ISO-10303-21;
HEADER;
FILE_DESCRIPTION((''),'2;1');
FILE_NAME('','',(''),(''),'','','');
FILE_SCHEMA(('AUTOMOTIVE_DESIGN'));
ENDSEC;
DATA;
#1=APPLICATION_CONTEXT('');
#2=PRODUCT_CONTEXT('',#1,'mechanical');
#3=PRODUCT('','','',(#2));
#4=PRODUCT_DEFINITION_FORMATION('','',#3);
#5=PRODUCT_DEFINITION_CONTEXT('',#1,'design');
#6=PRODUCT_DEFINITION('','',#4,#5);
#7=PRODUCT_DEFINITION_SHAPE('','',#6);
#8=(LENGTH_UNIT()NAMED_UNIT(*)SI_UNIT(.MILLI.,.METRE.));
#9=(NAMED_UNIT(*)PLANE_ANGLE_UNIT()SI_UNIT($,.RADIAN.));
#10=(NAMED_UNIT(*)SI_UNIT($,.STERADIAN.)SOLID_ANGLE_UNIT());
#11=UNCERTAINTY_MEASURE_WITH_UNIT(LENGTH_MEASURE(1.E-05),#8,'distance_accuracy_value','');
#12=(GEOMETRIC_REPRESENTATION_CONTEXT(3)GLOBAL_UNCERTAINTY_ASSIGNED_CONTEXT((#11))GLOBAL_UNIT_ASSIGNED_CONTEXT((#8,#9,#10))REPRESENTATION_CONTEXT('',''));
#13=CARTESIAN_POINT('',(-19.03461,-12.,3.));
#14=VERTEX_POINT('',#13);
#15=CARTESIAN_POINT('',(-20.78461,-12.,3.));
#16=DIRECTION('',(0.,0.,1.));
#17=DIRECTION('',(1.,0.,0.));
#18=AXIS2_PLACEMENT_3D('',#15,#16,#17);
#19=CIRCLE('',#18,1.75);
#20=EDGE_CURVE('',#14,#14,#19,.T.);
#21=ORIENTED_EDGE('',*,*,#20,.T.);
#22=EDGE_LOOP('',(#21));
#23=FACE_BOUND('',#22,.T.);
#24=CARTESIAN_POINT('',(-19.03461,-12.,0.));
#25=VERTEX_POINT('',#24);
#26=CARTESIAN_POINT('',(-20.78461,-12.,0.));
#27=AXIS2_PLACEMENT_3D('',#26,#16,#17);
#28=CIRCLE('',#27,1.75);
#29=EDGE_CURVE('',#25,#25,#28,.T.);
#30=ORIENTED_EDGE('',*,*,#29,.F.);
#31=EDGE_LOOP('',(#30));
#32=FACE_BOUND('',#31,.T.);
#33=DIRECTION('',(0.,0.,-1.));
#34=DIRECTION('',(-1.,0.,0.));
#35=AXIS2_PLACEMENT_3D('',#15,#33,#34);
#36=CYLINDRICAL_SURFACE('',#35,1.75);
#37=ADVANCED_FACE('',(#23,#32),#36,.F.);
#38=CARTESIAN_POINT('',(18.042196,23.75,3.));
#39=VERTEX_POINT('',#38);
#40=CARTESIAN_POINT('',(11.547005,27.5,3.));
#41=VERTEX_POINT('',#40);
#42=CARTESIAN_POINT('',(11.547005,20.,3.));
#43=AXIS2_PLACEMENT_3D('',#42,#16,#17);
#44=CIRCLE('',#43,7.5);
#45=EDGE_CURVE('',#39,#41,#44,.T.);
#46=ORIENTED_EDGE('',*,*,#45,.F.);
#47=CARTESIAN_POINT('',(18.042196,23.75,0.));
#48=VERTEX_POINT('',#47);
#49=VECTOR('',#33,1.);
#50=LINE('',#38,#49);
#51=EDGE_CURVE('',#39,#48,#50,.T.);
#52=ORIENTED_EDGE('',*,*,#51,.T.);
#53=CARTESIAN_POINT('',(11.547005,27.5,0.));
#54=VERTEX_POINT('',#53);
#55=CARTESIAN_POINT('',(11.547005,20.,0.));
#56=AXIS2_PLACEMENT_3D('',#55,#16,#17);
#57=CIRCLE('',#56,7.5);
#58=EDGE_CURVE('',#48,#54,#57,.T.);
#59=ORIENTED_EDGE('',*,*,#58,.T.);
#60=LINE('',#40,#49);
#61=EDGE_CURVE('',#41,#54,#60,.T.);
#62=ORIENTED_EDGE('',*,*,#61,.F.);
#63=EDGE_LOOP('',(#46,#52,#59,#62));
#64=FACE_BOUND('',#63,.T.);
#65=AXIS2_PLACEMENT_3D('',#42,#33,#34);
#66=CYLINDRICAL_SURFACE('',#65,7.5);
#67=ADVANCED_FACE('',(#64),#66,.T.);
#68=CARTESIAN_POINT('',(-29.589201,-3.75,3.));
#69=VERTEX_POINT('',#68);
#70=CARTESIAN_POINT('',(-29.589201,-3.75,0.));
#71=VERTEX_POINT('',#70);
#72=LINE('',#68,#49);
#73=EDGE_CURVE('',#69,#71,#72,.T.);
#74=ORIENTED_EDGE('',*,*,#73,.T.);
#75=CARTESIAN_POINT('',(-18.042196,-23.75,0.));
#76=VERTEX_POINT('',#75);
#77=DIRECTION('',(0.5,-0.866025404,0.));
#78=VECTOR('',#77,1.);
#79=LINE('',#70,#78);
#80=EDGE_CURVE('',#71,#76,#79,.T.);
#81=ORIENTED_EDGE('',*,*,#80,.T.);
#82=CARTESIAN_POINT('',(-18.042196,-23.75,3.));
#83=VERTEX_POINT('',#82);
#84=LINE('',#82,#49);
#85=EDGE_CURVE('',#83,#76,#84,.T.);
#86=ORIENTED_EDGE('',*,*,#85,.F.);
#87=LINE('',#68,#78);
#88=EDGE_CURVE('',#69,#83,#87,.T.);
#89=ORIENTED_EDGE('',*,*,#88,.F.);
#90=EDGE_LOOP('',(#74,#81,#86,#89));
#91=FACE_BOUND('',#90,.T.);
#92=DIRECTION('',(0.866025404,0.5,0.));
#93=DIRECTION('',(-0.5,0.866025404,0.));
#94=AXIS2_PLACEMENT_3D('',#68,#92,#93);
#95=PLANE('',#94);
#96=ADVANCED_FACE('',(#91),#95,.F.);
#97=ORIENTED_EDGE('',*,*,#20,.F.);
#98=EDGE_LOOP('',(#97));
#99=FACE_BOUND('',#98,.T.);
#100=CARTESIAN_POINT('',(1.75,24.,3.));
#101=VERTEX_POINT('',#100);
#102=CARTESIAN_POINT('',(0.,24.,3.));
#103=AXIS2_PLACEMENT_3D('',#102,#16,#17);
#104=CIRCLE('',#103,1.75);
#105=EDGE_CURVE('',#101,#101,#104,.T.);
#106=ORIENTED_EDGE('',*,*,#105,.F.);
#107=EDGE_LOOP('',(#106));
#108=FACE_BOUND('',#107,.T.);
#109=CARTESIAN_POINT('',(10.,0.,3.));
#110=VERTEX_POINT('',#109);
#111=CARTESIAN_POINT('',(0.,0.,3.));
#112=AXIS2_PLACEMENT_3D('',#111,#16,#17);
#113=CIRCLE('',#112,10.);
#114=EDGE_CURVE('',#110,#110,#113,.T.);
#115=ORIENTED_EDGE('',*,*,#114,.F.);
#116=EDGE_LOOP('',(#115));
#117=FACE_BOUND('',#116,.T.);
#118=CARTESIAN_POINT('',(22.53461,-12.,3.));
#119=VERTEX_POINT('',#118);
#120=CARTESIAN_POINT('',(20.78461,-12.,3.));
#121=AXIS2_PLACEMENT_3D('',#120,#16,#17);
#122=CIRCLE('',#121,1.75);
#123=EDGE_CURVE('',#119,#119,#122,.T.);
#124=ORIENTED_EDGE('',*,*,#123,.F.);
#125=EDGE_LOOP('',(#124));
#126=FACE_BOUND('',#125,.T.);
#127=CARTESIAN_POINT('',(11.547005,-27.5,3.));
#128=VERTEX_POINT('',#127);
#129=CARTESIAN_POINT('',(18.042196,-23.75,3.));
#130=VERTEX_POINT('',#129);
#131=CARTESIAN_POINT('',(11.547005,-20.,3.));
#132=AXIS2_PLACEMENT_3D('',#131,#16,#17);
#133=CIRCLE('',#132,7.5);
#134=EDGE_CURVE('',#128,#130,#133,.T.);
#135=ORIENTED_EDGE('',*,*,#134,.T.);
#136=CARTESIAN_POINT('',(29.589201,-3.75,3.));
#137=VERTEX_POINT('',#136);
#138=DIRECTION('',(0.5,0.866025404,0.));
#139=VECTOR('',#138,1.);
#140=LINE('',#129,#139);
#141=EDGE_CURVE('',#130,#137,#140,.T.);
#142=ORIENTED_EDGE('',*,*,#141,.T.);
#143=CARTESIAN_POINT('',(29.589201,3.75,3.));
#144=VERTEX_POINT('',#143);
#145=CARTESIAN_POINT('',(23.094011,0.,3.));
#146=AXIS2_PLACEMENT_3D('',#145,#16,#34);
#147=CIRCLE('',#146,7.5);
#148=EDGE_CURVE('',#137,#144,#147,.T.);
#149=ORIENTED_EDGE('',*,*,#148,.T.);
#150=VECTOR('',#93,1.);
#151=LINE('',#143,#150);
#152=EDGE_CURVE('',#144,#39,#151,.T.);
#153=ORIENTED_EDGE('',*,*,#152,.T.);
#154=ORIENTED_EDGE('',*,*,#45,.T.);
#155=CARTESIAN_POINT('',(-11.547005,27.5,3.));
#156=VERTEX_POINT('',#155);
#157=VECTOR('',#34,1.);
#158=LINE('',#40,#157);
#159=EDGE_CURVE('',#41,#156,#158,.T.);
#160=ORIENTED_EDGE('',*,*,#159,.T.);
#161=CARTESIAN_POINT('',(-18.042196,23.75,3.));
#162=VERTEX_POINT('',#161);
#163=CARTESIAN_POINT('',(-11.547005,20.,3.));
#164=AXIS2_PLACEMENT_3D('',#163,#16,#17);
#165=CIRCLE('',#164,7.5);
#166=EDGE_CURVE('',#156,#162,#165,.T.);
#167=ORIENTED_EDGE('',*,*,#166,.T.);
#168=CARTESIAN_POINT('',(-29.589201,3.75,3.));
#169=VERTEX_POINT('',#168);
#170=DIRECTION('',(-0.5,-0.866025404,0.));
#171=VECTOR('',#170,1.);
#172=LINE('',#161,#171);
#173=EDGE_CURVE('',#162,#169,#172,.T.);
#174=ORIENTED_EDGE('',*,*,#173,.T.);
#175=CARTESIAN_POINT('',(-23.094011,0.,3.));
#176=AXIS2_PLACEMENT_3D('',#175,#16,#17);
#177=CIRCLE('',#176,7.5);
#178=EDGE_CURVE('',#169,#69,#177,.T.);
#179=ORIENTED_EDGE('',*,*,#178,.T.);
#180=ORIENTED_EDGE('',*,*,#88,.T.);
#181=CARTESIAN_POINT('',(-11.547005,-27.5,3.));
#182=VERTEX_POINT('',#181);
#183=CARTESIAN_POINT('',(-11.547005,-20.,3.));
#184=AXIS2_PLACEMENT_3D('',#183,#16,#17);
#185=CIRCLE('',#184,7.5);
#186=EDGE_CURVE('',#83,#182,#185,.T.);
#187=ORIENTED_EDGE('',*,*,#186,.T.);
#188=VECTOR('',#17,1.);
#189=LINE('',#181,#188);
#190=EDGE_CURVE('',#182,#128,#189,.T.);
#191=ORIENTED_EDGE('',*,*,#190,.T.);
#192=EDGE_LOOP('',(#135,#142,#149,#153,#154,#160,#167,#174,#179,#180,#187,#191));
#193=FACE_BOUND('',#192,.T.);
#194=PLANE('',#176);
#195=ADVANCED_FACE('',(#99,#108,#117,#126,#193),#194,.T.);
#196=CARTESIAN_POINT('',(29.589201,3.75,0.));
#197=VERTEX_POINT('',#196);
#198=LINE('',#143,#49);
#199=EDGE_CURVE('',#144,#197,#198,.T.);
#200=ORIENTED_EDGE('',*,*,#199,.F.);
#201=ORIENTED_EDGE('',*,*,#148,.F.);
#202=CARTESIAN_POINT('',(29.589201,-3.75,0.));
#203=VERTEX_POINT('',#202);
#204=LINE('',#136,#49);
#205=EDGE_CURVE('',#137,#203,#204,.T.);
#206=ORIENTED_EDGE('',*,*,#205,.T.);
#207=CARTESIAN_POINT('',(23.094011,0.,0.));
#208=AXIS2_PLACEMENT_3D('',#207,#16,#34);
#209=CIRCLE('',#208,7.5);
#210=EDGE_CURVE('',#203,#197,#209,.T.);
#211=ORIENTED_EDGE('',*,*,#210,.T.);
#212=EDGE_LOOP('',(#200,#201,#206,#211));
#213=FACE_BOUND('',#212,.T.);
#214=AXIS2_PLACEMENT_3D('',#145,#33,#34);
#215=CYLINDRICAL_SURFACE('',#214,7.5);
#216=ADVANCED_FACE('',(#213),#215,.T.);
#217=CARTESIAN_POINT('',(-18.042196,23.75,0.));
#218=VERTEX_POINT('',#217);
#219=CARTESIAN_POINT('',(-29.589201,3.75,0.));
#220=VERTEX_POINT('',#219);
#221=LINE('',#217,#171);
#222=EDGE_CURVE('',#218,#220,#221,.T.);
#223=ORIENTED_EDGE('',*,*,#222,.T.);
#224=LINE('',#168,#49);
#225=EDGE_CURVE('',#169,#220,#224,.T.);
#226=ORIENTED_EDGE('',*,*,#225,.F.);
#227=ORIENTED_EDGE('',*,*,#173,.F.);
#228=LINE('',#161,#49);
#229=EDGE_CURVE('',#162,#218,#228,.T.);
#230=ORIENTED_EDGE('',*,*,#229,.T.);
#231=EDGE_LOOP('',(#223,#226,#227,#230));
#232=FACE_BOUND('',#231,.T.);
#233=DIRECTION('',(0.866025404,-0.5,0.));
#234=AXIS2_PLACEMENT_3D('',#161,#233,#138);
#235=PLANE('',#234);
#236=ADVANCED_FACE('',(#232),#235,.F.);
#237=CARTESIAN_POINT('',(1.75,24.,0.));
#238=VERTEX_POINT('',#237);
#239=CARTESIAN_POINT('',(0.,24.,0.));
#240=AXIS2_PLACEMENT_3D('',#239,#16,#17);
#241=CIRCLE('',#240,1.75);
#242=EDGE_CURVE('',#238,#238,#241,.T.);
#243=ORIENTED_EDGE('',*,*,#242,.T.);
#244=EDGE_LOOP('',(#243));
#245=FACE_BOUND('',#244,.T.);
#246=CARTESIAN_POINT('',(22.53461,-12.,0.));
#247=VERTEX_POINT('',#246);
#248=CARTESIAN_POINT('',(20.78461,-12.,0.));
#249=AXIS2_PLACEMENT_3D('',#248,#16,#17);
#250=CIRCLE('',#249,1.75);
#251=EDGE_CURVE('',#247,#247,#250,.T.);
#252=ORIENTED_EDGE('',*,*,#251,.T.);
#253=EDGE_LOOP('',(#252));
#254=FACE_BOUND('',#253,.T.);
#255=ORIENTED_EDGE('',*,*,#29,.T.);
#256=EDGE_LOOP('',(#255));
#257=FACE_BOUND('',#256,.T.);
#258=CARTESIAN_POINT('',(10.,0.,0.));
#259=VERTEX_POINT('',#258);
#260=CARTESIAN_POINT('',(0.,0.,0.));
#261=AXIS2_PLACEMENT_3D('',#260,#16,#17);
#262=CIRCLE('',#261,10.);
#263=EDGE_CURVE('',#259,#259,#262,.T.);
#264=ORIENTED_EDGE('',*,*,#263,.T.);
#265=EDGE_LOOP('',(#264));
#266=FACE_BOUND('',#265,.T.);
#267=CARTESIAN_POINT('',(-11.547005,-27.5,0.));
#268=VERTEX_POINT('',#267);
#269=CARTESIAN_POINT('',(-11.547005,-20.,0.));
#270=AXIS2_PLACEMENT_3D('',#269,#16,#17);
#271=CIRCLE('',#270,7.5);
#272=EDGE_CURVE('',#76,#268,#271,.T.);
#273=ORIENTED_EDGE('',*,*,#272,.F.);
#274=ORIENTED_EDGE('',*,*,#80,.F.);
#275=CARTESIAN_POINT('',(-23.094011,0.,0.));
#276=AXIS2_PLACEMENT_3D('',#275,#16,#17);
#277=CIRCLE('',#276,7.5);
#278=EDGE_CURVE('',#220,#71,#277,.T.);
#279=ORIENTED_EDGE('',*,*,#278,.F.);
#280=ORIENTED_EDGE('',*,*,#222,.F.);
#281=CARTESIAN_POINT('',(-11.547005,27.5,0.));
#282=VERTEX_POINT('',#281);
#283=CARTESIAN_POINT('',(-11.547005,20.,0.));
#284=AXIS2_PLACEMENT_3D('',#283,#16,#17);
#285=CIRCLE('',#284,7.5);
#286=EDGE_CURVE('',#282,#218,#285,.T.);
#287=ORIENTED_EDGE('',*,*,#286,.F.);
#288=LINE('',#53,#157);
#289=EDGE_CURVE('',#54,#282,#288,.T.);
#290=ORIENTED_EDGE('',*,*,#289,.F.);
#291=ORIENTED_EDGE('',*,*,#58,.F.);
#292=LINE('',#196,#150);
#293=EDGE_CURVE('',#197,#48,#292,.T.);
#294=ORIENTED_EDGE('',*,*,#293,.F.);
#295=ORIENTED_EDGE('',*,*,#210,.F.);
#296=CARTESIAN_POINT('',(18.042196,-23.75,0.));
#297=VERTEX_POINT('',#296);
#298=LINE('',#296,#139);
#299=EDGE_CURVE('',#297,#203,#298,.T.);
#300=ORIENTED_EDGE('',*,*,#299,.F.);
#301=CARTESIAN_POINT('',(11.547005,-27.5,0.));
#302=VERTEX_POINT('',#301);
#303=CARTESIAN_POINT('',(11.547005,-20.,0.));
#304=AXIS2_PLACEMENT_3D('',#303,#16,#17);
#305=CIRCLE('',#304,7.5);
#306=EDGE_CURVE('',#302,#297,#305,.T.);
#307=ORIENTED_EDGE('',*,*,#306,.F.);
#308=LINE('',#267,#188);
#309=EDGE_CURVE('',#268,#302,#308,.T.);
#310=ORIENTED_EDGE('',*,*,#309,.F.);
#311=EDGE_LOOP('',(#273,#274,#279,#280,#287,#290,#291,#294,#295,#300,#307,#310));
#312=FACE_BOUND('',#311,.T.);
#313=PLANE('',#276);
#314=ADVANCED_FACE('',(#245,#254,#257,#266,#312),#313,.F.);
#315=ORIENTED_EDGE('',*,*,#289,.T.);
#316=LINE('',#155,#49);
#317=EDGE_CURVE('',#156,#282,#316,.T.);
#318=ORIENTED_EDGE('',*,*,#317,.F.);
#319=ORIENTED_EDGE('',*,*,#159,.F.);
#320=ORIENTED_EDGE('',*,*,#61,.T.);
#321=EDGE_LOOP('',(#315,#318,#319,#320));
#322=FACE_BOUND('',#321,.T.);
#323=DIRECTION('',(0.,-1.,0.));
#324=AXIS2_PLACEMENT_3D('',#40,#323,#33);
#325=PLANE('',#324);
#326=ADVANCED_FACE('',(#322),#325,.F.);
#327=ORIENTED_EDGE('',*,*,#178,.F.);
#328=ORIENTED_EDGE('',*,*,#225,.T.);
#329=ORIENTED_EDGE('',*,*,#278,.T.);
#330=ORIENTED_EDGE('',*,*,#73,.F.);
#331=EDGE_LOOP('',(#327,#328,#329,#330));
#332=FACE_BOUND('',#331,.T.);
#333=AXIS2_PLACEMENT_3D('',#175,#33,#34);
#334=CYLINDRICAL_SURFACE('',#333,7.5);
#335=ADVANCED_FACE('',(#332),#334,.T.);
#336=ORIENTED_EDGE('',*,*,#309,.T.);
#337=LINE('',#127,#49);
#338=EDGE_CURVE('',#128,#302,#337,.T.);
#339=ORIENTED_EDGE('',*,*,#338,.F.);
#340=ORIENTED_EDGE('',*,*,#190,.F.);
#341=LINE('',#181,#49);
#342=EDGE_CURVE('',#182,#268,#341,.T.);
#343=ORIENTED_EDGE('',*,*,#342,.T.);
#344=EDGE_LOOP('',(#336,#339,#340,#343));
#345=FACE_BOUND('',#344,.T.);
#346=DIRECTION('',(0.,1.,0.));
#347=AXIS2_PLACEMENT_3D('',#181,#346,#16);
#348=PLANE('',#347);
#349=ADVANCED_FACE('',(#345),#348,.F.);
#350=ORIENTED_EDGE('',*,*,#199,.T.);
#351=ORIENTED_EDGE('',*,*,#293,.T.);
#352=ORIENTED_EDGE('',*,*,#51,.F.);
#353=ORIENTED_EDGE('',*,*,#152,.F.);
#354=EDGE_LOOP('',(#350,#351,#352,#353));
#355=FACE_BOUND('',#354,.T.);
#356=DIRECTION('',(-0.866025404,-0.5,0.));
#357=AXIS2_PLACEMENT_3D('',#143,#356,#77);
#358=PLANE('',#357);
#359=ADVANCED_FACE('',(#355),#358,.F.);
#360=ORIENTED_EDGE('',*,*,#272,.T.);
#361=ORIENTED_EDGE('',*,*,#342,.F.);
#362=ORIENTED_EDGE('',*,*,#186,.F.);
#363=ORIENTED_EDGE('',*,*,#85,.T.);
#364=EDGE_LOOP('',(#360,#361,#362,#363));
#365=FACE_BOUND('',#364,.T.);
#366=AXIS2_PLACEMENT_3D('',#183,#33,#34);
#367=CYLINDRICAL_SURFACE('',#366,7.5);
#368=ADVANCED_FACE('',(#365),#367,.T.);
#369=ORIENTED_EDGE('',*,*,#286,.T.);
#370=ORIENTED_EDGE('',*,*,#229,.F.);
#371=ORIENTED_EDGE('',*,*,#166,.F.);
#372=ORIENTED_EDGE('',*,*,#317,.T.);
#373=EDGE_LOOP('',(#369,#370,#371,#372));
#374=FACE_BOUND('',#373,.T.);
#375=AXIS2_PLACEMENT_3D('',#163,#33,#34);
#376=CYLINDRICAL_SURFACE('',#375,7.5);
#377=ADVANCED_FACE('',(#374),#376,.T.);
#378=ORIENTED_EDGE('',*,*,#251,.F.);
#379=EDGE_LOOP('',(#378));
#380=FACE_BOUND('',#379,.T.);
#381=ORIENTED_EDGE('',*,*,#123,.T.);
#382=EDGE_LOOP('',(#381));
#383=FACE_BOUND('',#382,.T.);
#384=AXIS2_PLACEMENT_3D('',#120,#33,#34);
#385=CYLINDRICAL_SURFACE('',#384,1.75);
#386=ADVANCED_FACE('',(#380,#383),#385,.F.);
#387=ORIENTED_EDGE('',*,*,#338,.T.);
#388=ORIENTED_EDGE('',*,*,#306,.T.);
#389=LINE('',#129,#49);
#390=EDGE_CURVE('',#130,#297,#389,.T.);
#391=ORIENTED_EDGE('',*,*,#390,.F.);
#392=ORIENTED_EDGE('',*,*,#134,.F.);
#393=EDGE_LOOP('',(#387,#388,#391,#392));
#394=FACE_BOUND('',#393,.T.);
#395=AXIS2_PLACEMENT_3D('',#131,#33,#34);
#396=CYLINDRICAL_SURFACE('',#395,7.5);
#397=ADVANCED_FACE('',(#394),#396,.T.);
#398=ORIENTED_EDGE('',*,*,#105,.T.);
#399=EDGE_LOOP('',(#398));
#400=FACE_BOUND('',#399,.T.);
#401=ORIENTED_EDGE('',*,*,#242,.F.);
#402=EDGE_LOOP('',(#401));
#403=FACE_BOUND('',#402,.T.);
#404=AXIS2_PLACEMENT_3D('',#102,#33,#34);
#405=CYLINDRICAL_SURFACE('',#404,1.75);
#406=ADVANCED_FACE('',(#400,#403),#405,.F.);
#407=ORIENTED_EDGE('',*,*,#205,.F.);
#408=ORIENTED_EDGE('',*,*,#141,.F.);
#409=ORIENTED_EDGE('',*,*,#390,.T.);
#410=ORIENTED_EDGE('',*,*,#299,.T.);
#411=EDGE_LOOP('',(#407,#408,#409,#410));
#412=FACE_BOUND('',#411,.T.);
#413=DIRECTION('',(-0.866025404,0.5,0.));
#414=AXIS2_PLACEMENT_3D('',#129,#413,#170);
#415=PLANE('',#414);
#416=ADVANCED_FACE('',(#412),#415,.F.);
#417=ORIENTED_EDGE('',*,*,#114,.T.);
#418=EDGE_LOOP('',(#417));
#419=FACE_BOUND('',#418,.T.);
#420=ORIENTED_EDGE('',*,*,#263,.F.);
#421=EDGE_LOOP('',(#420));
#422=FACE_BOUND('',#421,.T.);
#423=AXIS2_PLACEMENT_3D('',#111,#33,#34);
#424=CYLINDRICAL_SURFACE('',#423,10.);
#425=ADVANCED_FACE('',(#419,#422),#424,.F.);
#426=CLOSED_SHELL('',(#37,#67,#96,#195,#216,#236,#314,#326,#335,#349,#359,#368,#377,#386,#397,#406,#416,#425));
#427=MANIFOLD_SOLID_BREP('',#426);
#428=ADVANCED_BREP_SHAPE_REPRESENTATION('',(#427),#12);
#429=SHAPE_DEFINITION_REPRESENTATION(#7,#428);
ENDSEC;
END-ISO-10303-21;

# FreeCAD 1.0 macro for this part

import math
import FreeCAD as App
import Part
import Sketcher
from FreeCAD import Vector
Q = App.Units.Quantity

doc = App.newDocument("Part")
body = doc.addObject("PartDesign::Body", "Body")

# Sketch on XY plane
sketch1 = doc.addObject("Sketcher::SketchObject", "Sketch")
body.addObject(sketch1)
sketch1.AttachmentSupport = (doc.XY_Plane, [""])
sketch1.MapMode = "FlatFace"
sketch1.addGeometry(Part.LineSegment(Vector(29.589201, 3.75, 0), Vector(18.042196, 23.75, 0)), False)
sketch1.addGeometry(Part.ArcOfCircle(Part.Circle(Vector(11.547005, 20, 0), Vector(0, 0, 1), 7.5), math.radians(30), math.radians(90)), False)
sketch1.addGeometry(Part.LineSegment(Vector(11.547005, 27.5, 0), Vector(-11.547005, 27.5, 0)), False)
sketch1.addGeometry(Part.ArcOfCircle(Part.Circle(Vector(-11.547005, 20, 0), Vector(0, 0, 1), 7.5), math.radians(90), math.radians(150)), False)
sketch1.addGeometry(Part.LineSegment(Vector(-18.042196, 23.75, 0), Vector(-29.589201, 3.75, 0)), False)
sketch1.addGeometry(Part.ArcOfCircle(Part.Circle(Vector(-23.094011, 0, 0), Vector(0, 0, 1), 7.5), math.radians(150), math.radians(210)), False)
sketch1.addGeometry(Part.LineSegment(Vector(-29.589201, -3.75, 0), Vector(-18.042196, -23.75, 0)), False)
sketch1.addGeometry(Part.ArcOfCircle(Part.Circle(Vector(-11.547005, -20, 0), Vector(0, 0, 1), 7.5), math.radians(-150), math.radians(-90)), False)
sketch1.addGeometry(Part.LineSegment(Vector(-11.547005, -27.5, 0), Vector(11.547005, -27.5, 0)), False)
sketch1.addGeometry(Part.ArcOfCircle(Part.Circle(Vector(11.547005, -20, 0), Vector(0, 0, 1), 7.5), math.radians(-90), math.radians(-30)), False)
sketch1.addGeometry(Part.LineSegment(Vector(18.042196, -23.75, 0), Vector(29.589201, -3.75, 0)), False)
sketch1.addGeometry(Part.ArcOfCircle(Part.Circle(Vector(23.094011, 0, 0), Vector(0, 0, 1), 7.5), math.radians(-30), math.radians(30)), False)
sketch1.addGeometry(Part.Circle(Vector(-20.78461, -12, 0), Vector(0, 0, 1), 1.75), False)
sketch1.addGeometry(Part.Circle(Vector(20.78461, -12, 0), Vector(0, 0, 1), 1.75), False)
sketch1.addGeometry(Part.Circle(Vector(0, 0, 0), Vector(0, 0, 1), 10), False)
sketch1.addGeometry(Part.Circle(Vector(0, 24, 0), Vector(0, 0, 1), 1.75), False)
sketch1.addConstraint(Sketcher.Constraint("Tangent", 0, 2, 1, 1))
sketch1.addConstraint(Sketcher.Constraint("Tangent", 1, 2, 2, 1))
sketch1.addConstraint(Sketcher.Constraint("Tangent", 2, 2, 3, 1))
sketch1.addConstraint(Sketcher.Constraint("Tangent", 3, 2, 4, 1))
sketch1.addConstraint(Sketcher.Constraint("Tangent", 4, 2, 5, 1))
sketch1.addConstraint(Sketcher.Constraint("Tangent", 5, 2, 6, 1))
sketch1.addConstraint(Sketcher.Constraint("Tangent", 6, 2, 7, 1))
sketch1.addConstraint(Sketcher.Constraint("Tangent", 7, 2, 8, 1))
sketch1.addConstraint(Sketcher.Constraint("Tangent", 8, 2, 9, 1))
sketch1.addConstraint(Sketcher.Constraint("Tangent", 9, 2, 10, 1))
sketch1.addConstraint(Sketcher.Constraint("Tangent", 10, 2, 11, 1))
sketch1.addConstraint(Sketcher.Constraint("Tangent", 11, 2, 0, 1))
sketch1.addConstraint(Sketcher.Constraint("Horizontal", 2))
sketch1.addConstraint(Sketcher.Constraint("Horizontal", 8))
sketch1.addConstraint(Sketcher.Constraint("Coincident", 14, 3, -1, 1))
sketch1.addConstraint(Sketcher.Constraint("Equal", 1, 3))
sketch1.addConstraint(Sketcher.Constraint("Equal", 3, 5))
sketch1.addConstraint(Sketcher.Constraint("Equal", 5, 7))
sketch1.addConstraint(Sketcher.Constraint("Equal", 7, 9))
sketch1.addConstraint(Sketcher.Constraint("Equal", 9, 11))
sketch1.addConstraint(Sketcher.Constraint("Equal", 12, 13))
sketch1.addConstraint(Sketcher.Constraint("Equal", 13, 15))
sketch1.addConstraint(Sketcher.Constraint("Symmetric", 1, 3, 7, 3, -1, 1))
sketch1.addConstraint(Sketcher.Constraint("Symmetric", 5, 3, 11, 3, -1, 1))
sketch1.addConstraint(Sketcher.Constraint("Symmetric", 12, 3, 13, 3, -2))
sketch1.addConstraint(Sketcher.Constraint("Symmetric", 0, 2, 3, 2, -2))
sketch1.addConstraint(Sketcher.Constraint("PointOnObject", 15, 3, -2))
sketch1.addConstraint(Sketcher.Constraint("Parallel", 4, 10))
sketch1.addConstraint(Sketcher.Constraint("Diameter", 14, Q("20 mm")))
sketch1.addConstraint(Sketcher.Constraint("Diameter", 12, Q("3.5 mm")))
sketch1.addConstraint(Sketcher.Constraint("Radius", 1, Q("7.5 mm")))
sketch1.addConstraint(Sketcher.Constraint("Angle", 0, Q("120 deg")))
sketch1.addConstraint(Sketcher.Constraint("DistanceY", -1, 1, 1, 3, Q("20 mm")))
sketch1.addConstraint(Sketcher.Constraint("DistanceY", 12, 3, -1, 1, Q("12 mm")))
sketch1.addConstraint(Sketcher.Constraint("DistanceY", -1, 1, 15, 3, Q("24 mm")))
sketch1.addConstraint(Sketcher.Constraint("DistanceX", 2, 2, 2, 1, Q("23.094011 mm")))
sketch1.addConstraint(Sketcher.Constraint("DistanceX", 5, 3, 12, 3, Q("2.309401 mm")))
pad1 = doc.addObject("PartDesign::Pad", "Pad")
body.addObject(pad1)
pad1.Profile = sketch1
pad1.Length = 3

doc.recompute()
